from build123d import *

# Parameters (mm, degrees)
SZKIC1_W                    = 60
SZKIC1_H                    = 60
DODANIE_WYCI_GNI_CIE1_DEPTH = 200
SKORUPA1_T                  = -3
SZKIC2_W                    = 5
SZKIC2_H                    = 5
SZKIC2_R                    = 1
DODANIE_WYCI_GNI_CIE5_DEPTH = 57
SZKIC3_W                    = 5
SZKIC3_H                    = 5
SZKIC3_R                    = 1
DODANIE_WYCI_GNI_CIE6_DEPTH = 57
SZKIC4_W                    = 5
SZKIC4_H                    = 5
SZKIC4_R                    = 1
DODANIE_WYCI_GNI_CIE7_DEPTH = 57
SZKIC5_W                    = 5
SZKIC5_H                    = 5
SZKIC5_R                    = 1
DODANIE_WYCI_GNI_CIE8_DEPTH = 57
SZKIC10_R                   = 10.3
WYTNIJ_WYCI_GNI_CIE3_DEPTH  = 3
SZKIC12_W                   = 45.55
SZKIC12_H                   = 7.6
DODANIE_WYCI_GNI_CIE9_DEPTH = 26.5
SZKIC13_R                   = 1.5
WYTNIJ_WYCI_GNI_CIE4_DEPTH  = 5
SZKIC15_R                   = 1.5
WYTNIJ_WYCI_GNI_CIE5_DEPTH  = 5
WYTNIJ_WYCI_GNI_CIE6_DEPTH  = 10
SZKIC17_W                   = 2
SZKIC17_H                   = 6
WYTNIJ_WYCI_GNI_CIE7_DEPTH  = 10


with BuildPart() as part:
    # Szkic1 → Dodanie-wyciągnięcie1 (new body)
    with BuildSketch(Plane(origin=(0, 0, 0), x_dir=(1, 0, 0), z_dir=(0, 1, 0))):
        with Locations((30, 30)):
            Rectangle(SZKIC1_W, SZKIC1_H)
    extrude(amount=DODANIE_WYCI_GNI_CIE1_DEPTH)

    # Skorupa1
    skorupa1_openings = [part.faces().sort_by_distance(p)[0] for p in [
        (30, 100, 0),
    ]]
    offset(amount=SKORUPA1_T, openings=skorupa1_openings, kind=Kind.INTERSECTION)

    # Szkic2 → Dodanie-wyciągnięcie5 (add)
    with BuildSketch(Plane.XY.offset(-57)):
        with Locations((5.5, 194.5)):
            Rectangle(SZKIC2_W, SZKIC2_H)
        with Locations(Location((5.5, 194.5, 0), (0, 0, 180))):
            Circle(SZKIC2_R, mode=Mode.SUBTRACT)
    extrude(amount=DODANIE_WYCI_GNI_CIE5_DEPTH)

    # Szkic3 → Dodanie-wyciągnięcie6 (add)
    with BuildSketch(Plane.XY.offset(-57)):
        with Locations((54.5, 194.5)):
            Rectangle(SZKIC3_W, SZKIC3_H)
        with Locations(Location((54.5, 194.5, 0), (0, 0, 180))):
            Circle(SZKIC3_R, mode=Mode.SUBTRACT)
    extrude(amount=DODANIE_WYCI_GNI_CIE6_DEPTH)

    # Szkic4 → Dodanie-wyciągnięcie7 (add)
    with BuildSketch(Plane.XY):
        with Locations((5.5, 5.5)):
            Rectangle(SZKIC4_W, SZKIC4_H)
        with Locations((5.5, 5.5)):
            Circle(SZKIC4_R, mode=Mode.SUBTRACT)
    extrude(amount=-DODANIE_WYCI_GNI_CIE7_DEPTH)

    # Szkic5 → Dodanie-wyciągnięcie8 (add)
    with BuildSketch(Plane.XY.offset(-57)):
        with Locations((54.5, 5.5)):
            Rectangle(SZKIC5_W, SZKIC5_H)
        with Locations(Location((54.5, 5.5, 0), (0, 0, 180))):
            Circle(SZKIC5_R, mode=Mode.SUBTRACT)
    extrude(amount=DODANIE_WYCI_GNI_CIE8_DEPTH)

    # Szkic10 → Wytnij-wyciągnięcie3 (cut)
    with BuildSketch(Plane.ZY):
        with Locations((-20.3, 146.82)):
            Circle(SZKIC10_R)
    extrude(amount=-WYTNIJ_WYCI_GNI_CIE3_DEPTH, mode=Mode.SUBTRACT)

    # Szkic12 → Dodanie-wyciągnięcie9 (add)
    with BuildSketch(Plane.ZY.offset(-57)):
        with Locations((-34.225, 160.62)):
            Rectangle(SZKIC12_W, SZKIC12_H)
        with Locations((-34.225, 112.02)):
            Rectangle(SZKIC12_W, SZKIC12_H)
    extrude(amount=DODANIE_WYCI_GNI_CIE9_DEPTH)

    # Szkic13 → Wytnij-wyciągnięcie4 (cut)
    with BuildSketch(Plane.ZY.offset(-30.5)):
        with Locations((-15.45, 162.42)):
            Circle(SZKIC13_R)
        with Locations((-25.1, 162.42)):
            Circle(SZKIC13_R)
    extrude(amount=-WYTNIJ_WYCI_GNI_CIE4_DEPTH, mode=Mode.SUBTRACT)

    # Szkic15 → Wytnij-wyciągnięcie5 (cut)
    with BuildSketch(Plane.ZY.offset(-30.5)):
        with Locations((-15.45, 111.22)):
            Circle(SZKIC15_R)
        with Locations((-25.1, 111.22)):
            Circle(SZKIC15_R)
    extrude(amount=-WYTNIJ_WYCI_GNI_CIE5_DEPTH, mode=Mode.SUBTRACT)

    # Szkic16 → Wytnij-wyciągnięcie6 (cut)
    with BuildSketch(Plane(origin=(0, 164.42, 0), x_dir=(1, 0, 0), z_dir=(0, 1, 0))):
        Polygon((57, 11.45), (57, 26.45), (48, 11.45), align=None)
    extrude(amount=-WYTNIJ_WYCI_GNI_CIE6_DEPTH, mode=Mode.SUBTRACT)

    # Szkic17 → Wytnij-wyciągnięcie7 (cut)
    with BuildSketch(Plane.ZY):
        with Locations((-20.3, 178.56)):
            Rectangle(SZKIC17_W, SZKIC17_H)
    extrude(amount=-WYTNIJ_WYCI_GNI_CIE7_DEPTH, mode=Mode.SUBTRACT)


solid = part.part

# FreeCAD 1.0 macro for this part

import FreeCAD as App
import Part
import Sketcher
from FreeCAD import Vector


def faces_at(feature, points):
    """Names of the faces that lie closest to the given points."""
    faces = feature.Shape.Faces
    near = lambda p: min(range(len(faces)), key=lambda i: faces[i].distToShape(Part.Vertex(*p))[0])
    return sorted({f"Face{near(p) + 1}" for p in points})


def add_polygon(sketch, points):
    """Adds a closed chain of lines whose ends are joined by coincident constraints."""
    first, n = sketch.GeometryCount, len(points)
    for a, b in zip(points, points[1:] + points[:1]):
        sketch.addGeometry(Part.LineSegment(App.Vector(*a, 0), App.Vector(*b, 0)), False)
    for i in range(n):
        sketch.addConstraint(Sketcher.Constraint("Coincident", first + i, 2, first + (i + 1) % n, 1))

doc = App.newDocument("Part")
body = doc.addObject("PartDesign::Body", "Body")

# Sketch on XZ plane
sketch1 = body.newObject("Sketcher::SketchObject", "Sketch")
sketch1.AttachmentSupport = (doc.getObject("XZ_Plane"), [""])
sketch1.MapMode = "FlatFace"
add_polygon(sketch1, [(0, -60), (0, 0), (60, 0), (60, -60)])  # lines 0-3
sketch1.addConstraint(Sketcher.Constraint("Vertical", 0))
sketch1.addConstraint(Sketcher.Constraint("Horizontal", 1))
sketch1.addConstraint(Sketcher.Constraint("Vertical", 2))
sketch1.addConstraint(Sketcher.Constraint("Horizontal", 3))
sketch1.addConstraint(Sketcher.Constraint("Coincident", 0, 2, -1, 1))
sketch1.addConstraint(Sketcher.Constraint("Equal", 3, 0))
sketch1.addConstraint(Sketcher.Constraint("DistanceX", 1, 1, 1, 2, 60.0))
pad1 = body.newObject("PartDesign::Pad", "Pad")
pad1.Profile = sketch1
pad1.Length = 200
pad1.Reversed = True
doc.recompute()

thickness = body.newObject("PartDesign::Thickness", "Thickness")
thickness.Base = (pad1, faces_at(pad1, [(30, 100, 0)]))
thickness.Value = 3
thickness.Reversed = True
thickness.Join = "Intersection"

# Sketch on XY plane
sketch2 = body.newObject("Sketcher::SketchObject", "Sketch001")
sketch2.AttachmentSupport = (doc.getObject("XY_Plane"), [""])
sketch2.MapMode = "FlatFace"
sketch2.AttachmentOffset = App.Placement(Vector(0, 0, -57), App.Rotation())
add_polygon(sketch2, [(3, 197), (3, 192), (8, 192), (8, 197)])  # lines 0-3
sketch2.addGeometry(Part.Circle(Vector(5.5, 194.5, 0), Vector(0, 0, 1), 1), False)  # 4
sketch2.addConstraint(Sketcher.Constraint("Vertical", 0))
sketch2.addConstraint(Sketcher.Constraint("Horizontal", 1))
sketch2.addConstraint(Sketcher.Constraint("Vertical", 2))
sketch2.addConstraint(Sketcher.Constraint("Horizontal", 3))
sketch2.addConstraint(Sketcher.Constraint("Equal", 3, 0))
sketch2.addConstraint(Sketcher.Constraint("Diameter", 4, 2.0))
sketch2.addConstraint(Sketcher.Constraint("DistanceX", 1, 1, 1, 2, 5.0))
sketch2.addConstraint(Sketcher.Constraint("DistanceX", -1, 1, 0, 2, 3.0))
sketch2.addConstraint(Sketcher.Constraint("DistanceY", -1, 1, 0, 2, 192.0))
sketch2.addConstraint(Sketcher.Constraint("DistanceX", -1, 1, 4, 3, 5.5))
sketch2.addConstraint(Sketcher.Constraint("DistanceY", -1, 1, 4, 3, 194.5))
pad2 = body.newObject("PartDesign::Pad", "Pad001")
pad2.Profile = sketch2
pad2.Length = 57

# Sketch on XY plane
sketch3 = body.newObject("Sketcher::SketchObject", "Sketch002")
sketch3.AttachmentSupport = (doc.getObject("XY_Plane"), [""])
sketch3.MapMode = "FlatFace"
sketch3.AttachmentOffset = App.Placement(Vector(0, 0, -57), App.Rotation())
add_polygon(sketch3, [(52, 197), (52, 192), (57, 192), (57, 197)])  # lines 0-3
sketch3.addGeometry(Part.Circle(Vector(54.5, 194.5, 0), Vector(0, 0, 1), 1), False)  # 4
sketch3.addConstraint(Sketcher.Constraint("Vertical", 0))
sketch3.addConstraint(Sketcher.Constraint("Horizontal", 1))
sketch3.addConstraint(Sketcher.Constraint("Vertical", 2))
sketch3.addConstraint(Sketcher.Constraint("Horizontal", 3))
sketch3.addConstraint(Sketcher.Constraint("Equal", 3, 0))
sketch3.addConstraint(Sketcher.Constraint("Diameter", 4, 2.0))
sketch3.addConstraint(Sketcher.Constraint("DistanceX", 1, 1, 1, 2, 5.0))
sketch3.addConstraint(Sketcher.Constraint("DistanceX", -1, 1, 0, 2, 52.0))
sketch3.addConstraint(Sketcher.Constraint("DistanceY", -1, 1, 0, 2, 192.0))
sketch3.addConstraint(Sketcher.Constraint("DistanceX", -1, 1, 4, 3, 54.5))
sketch3.addConstraint(Sketcher.Constraint("DistanceY", -1, 1, 4, 3, 194.5))
pad3 = body.newObject("PartDesign::Pad", "Pad002")
pad3.Profile = sketch3
pad3.Length = 57

# Sketch on XY plane
sketch4 = body.newObject("Sketcher::SketchObject", "Sketch003")
sketch4.AttachmentSupport = (doc.getObject("XY_Plane"), [""])
sketch4.MapMode = "FlatFace"
add_polygon(sketch4, [(3, 8), (3, 3), (8, 3), (8, 8)])  # lines 0-3
sketch4.addGeometry(Part.Circle(Vector(5.5, 5.5, 0), Vector(0, 0, 1), 1), False)  # 4
sketch4.addConstraint(Sketcher.Constraint("Vertical", 0))
sketch4.addConstraint(Sketcher.Constraint("Horizontal", 1))
sketch4.addConstraint(Sketcher.Constraint("Vertical", 2))
sketch4.addConstraint(Sketcher.Constraint("Horizontal", 3))
sketch4.addConstraint(Sketcher.Constraint("Equal", 3, 0))
sketch4.addConstraint(Sketcher.Constraint("Diameter", 4, 2.0))
sketch4.addConstraint(Sketcher.Constraint("DistanceX", 1, 1, 1, 2, 5.0))
sketch4.addConstraint(Sketcher.Constraint("DistanceX", -1, 1, 0, 2, 3.0))
sketch4.addConstraint(Sketcher.Constraint("DistanceY", -1, 1, 0, 2, 3.0))
sketch4.addConstraint(Sketcher.Constraint("DistanceX", -1, 1, 4, 3, 5.5))
sketch4.addConstraint(Sketcher.Constraint("DistanceY", -1, 1, 4, 3, 5.5))
pad4 = body.newObject("PartDesign::Pad", "Pad003")
pad4.Profile = sketch4
pad4.Length = 57
pad4.Reversed = True

# Sketch on XY plane
sketch5 = body.newObject("Sketcher::SketchObject", "Sketch004")
sketch5.AttachmentSupport = (doc.getObject("XY_Plane"), [""])
sketch5.MapMode = "FlatFace"
sketch5.AttachmentOffset = App.Placement(Vector(0, 0, -57), App.Rotation())
add_polygon(sketch5, [(52, 8), (52, 3), (57, 3), (57, 8)])  # lines 0-3
sketch5.addGeometry(Part.Circle(Vector(54.5, 5.5, 0), Vector(0, 0, 1), 1), False)  # 4
sketch5.addConstraint(Sketcher.Constraint("Vertical", 0))
sketch5.addConstraint(Sketcher.Constraint("Horizontal", 1))
sketch5.addConstraint(Sketcher.Constraint("Vertical", 2))
sketch5.addConstraint(Sketcher.Constraint("Horizontal", 3))
sketch5.addConstraint(Sketcher.Constraint("Equal", 3, 0))
sketch5.addConstraint(Sketcher.Constraint("Diameter", 4, 2.0))
sketch5.addConstraint(Sketcher.Constraint("DistanceX", 1, 1, 1, 2, 5.0))
sketch5.addConstraint(Sketcher.Constraint("DistanceX", -1, 1, 0, 2, 52.0))
sketch5.addConstraint(Sketcher.Constraint("DistanceY", -1, 1, 0, 2, 3.0))
sketch5.addConstraint(Sketcher.Constraint("DistanceX", -1, 1, 4, 3, 54.5))
sketch5.addConstraint(Sketcher.Constraint("DistanceY", -1, 1, 4, 3, 5.5))
pad5 = body.newObject("PartDesign::Pad", "Pad004")
pad5.Profile = sketch5
pad5.Length = 57

# Sketch on YZ plane
sketch6 = body.newObject("Sketcher::SketchObject", "Sketch005")
sketch6.AttachmentSupport = (doc.getObject("YZ_Plane"), [""])
sketch6.MapMode = "FlatFace"
sketch6.addGeometry(Part.Circle(Vector(147, -20, 0), Vector(0, 0, 1), 10), False)
sketch6.addConstraint(Sketcher.Constraint("Diameter", 0, 20.6))
sketch6.addConstraint(Sketcher.Constraint("DistanceY", 0, 3, -1, 1, 20.3))
sketch6.addConstraint(Sketcher.Constraint("DistanceX", -1, 1, 0, 3, 146.82))
pocket1 = body.newObject("PartDesign::Pocket", "Pocket")
pocket1.Profile = sketch6
pocket1.Length = 3
pocket1.Reversed = True

# Sketch on YZ plane
sketch7 = body.newObject("Sketcher::SketchObject", "Sketch006")
sketch7.AttachmentSupport = (doc.getObject("YZ_Plane"), [""])
sketch7.MapMode = "FlatFace"
sketch7.AttachmentOffset = App.Placement(Vector(0, 0, 57), App.Rotation())
add_polygon(sketch7, [(164, -57), (157, -57), (157, -11), (164, -11)])  # lines 0-3
add_polygon(sketch7, [(116, -57), (108, -57), (108, -11), (116, -11)])  # lines 4-7
sketch7.addConstraint(Sketcher.Constraint("Horizontal", 0))
sketch7.addConstraint(Sketcher.Constraint("Vertical", 1))
sketch7.addConstraint(Sketcher.Constraint("Horizontal", 2))
sketch7.addConstraint(Sketcher.Constraint("Vertical", 3))
sketch7.addConstraint(Sketcher.Constraint("Horizontal", 4))
sketch7.addConstraint(Sketcher.Constraint("Vertical", 5))
sketch7.addConstraint(Sketcher.Constraint("Horizontal", 6))
sketch7.addConstraint(Sketcher.Constraint("Vertical", 7))
sketch7.addConstraint(Sketcher.Constraint("Horizontal", 3, 2, 4, 2))
sketch7.addConstraint(Sketcher.Constraint("Horizontal", 2, 2, 5, 2))
sketch7.addConstraint(Sketcher.Constraint("Equal", 2, 4))
sketch7.addConstraint(Sketcher.Constraint("DistanceX", 0, 2, 0, 1, 7.6))
sketch7.addConstraint(Sketcher.Constraint("DistanceY", 0, 2, -1, 1, 57.0))
sketch7.addConstraint(Sketcher.Constraint("DistanceX", 6, 2, 1, 2, 41.0))
sketch7.addConstraint(Sketcher.Constraint("DistanceY", 1, 1, 1, 2, 45.55))
sketch7.addConstraint(Sketcher.Constraint("DistanceX", -1, 1, 0, 2, 156.82))
pad6 = body.newObject("PartDesign::Pad", "Pad005")
pad6.Profile = sketch7
pad6.Length = 26.5
pad6.Reversed = True

# Sketch on YZ plane
sketch8 = body.newObject("Sketcher::SketchObject", "Sketch007")
sketch8.AttachmentSupport = (doc.getObject("YZ_Plane"), [""])
sketch8.MapMode = "FlatFace"
sketch8.AttachmentOffset = App.Placement(Vector(0, 0, 30.5), App.Rotation())
sketch8.addGeometry(Part.Circle(Vector(162.4, -15.4, 0), Vector(0, 0, 1), 1.5), False)
sketch8.addGeometry(Part.Circle(Vector(162.4, -25.1, 0), Vector(0, 0, 1), 1.5), False)
sketch8.addConstraint(Sketcher.Constraint("Equal", 0, 1))
sketch8.addConstraint(Sketcher.Constraint("Vertical", 0, 3, 1, 3))
sketch8.addConstraint(Sketcher.Constraint("Diameter", 0, 3.0))
sketch8.addConstraint(Sketcher.Constraint("DistanceY", 1, 3, -1, 1, 25.1))
sketch8.addConstraint(Sketcher.Constraint("DistanceX", -1, 1, 0, 3, 162.42))
sketch8.addConstraint(Sketcher.Constraint("DistanceY", 0, 3, -1, 1, 15.45))
pocket2 = body.newObject("PartDesign::Pocket", "Pocket001")
pocket2.Profile = sketch8
pocket2.Length = 5
pocket2.Reversed = True

# Sketch on YZ plane
sketch9 = body.newObject("Sketcher::SketchObject", "Sketch008")
sketch9.AttachmentSupport = (doc.getObject("YZ_Plane"), [""])
sketch9.MapMode = "FlatFace"
sketch9.AttachmentOffset = App.Placement(Vector(0, 0, 30.5), App.Rotation())
sketch9.addGeometry(Part.Circle(Vector(111.2, -15.4, 0), Vector(0, 0, 1), 1.5), False)
sketch9.addGeometry(Part.Circle(Vector(111.2, -25.1, 0), Vector(0, 0, 1), 1.5), False)
sketch9.addConstraint(Sketcher.Constraint("Equal", 0, 1))
sketch9.addConstraint(Sketcher.Constraint("Vertical", 0, 3, 1, 3))
sketch9.addConstraint(Sketcher.Constraint("Diameter", 0, 3.0))
sketch9.addConstraint(Sketcher.Constraint("DistanceY", 1, 3, -1, 1, 25.1))
sketch9.addConstraint(Sketcher.Constraint("DistanceX", -1, 1, 0, 3, 111.22))
sketch9.addConstraint(Sketcher.Constraint("DistanceY", 0, 3, -1, 1, 15.45))
pocket3 = body.newObject("PartDesign::Pocket", "Pocket002")
pocket3.Profile = sketch9
pocket3.Length = 5
pocket3.Reversed = True

# Sketch on XZ plane
sketch10 = body.newObject("Sketcher::SketchObject", "Sketch009")
sketch10.AttachmentSupport = (doc.getObject("XZ_Plane"), [""])
sketch10.MapMode = "FlatFace"
sketch10.AttachmentOffset = App.Placement(Vector(0, 0, -164.42), App.Rotation())
add_polygon(sketch10, [(57, -11), (57, -26), (48, -11)])  # lines 0-2
sketch10.addConstraint(Sketcher.Constraint("Vertical", 0))
sketch10.addConstraint(Sketcher.Constraint("Horizontal", 2))
sketch10.addConstraint(Sketcher.Constraint("DistanceX", 2, 1, 2, 2, 9.0))
sketch10.addConstraint(Sketcher.Constraint("DistanceY", 0, 2, 0, 1, 15.0))
sketch10.addConstraint(Sketcher.Constraint("DistanceX", -1, 1, 0, 2, 57.0))
sketch10.addConstraint(Sketcher.Constraint("DistanceY", 0, 2, -1, 1, 26.45))
pocket4 = body.newObject("PartDesign::Pocket", "Pocket003")
pocket4.Profile = sketch10
pocket4.Length = 10
pocket4.Reversed = True

# Sketch on YZ plane
sketch11 = body.newObject("Sketcher::SketchObject", "Sketch010")
sketch11.AttachmentSupport = (doc.getObject("YZ_Plane"), [""])
sketch11.MapMode = "FlatFace"
add_polygon(sketch11, [(181.6, -21.3), (175.6, -21.3), (175.6, -19.3), (181.6, -19.3)])  # lines 0-3
sketch11.addConstraint(Sketcher.Constraint("Horizontal", 0))
sketch11.addConstraint(Sketcher.Constraint("Vertical", 1))
sketch11.addConstraint(Sketcher.Constraint("Horizontal", 2))
sketch11.addConstraint(Sketcher.Constraint("Vertical", 3))
sketch11.addConstraint(Sketcher.Constraint("DistanceX", 0, 2, 0, 1, 6.0))
sketch11.addConstraint(Sketcher.Constraint("DistanceY", 1, 1, 1, 2, 2.0))
sketch11.addConstraint(Sketcher.Constraint("DistanceY", 0, 2, -1, 1, 21.3))
sketch11.addConstraint(Sketcher.Constraint("DistanceX", -1, 1, 0, 2, 175.56))
pocket5 = body.newObject("PartDesign::Pocket", "Pocket004")
pocket5.Profile = sketch11
pocket5.Length = 10
pocket5.Reversed = True

doc.recompute()
